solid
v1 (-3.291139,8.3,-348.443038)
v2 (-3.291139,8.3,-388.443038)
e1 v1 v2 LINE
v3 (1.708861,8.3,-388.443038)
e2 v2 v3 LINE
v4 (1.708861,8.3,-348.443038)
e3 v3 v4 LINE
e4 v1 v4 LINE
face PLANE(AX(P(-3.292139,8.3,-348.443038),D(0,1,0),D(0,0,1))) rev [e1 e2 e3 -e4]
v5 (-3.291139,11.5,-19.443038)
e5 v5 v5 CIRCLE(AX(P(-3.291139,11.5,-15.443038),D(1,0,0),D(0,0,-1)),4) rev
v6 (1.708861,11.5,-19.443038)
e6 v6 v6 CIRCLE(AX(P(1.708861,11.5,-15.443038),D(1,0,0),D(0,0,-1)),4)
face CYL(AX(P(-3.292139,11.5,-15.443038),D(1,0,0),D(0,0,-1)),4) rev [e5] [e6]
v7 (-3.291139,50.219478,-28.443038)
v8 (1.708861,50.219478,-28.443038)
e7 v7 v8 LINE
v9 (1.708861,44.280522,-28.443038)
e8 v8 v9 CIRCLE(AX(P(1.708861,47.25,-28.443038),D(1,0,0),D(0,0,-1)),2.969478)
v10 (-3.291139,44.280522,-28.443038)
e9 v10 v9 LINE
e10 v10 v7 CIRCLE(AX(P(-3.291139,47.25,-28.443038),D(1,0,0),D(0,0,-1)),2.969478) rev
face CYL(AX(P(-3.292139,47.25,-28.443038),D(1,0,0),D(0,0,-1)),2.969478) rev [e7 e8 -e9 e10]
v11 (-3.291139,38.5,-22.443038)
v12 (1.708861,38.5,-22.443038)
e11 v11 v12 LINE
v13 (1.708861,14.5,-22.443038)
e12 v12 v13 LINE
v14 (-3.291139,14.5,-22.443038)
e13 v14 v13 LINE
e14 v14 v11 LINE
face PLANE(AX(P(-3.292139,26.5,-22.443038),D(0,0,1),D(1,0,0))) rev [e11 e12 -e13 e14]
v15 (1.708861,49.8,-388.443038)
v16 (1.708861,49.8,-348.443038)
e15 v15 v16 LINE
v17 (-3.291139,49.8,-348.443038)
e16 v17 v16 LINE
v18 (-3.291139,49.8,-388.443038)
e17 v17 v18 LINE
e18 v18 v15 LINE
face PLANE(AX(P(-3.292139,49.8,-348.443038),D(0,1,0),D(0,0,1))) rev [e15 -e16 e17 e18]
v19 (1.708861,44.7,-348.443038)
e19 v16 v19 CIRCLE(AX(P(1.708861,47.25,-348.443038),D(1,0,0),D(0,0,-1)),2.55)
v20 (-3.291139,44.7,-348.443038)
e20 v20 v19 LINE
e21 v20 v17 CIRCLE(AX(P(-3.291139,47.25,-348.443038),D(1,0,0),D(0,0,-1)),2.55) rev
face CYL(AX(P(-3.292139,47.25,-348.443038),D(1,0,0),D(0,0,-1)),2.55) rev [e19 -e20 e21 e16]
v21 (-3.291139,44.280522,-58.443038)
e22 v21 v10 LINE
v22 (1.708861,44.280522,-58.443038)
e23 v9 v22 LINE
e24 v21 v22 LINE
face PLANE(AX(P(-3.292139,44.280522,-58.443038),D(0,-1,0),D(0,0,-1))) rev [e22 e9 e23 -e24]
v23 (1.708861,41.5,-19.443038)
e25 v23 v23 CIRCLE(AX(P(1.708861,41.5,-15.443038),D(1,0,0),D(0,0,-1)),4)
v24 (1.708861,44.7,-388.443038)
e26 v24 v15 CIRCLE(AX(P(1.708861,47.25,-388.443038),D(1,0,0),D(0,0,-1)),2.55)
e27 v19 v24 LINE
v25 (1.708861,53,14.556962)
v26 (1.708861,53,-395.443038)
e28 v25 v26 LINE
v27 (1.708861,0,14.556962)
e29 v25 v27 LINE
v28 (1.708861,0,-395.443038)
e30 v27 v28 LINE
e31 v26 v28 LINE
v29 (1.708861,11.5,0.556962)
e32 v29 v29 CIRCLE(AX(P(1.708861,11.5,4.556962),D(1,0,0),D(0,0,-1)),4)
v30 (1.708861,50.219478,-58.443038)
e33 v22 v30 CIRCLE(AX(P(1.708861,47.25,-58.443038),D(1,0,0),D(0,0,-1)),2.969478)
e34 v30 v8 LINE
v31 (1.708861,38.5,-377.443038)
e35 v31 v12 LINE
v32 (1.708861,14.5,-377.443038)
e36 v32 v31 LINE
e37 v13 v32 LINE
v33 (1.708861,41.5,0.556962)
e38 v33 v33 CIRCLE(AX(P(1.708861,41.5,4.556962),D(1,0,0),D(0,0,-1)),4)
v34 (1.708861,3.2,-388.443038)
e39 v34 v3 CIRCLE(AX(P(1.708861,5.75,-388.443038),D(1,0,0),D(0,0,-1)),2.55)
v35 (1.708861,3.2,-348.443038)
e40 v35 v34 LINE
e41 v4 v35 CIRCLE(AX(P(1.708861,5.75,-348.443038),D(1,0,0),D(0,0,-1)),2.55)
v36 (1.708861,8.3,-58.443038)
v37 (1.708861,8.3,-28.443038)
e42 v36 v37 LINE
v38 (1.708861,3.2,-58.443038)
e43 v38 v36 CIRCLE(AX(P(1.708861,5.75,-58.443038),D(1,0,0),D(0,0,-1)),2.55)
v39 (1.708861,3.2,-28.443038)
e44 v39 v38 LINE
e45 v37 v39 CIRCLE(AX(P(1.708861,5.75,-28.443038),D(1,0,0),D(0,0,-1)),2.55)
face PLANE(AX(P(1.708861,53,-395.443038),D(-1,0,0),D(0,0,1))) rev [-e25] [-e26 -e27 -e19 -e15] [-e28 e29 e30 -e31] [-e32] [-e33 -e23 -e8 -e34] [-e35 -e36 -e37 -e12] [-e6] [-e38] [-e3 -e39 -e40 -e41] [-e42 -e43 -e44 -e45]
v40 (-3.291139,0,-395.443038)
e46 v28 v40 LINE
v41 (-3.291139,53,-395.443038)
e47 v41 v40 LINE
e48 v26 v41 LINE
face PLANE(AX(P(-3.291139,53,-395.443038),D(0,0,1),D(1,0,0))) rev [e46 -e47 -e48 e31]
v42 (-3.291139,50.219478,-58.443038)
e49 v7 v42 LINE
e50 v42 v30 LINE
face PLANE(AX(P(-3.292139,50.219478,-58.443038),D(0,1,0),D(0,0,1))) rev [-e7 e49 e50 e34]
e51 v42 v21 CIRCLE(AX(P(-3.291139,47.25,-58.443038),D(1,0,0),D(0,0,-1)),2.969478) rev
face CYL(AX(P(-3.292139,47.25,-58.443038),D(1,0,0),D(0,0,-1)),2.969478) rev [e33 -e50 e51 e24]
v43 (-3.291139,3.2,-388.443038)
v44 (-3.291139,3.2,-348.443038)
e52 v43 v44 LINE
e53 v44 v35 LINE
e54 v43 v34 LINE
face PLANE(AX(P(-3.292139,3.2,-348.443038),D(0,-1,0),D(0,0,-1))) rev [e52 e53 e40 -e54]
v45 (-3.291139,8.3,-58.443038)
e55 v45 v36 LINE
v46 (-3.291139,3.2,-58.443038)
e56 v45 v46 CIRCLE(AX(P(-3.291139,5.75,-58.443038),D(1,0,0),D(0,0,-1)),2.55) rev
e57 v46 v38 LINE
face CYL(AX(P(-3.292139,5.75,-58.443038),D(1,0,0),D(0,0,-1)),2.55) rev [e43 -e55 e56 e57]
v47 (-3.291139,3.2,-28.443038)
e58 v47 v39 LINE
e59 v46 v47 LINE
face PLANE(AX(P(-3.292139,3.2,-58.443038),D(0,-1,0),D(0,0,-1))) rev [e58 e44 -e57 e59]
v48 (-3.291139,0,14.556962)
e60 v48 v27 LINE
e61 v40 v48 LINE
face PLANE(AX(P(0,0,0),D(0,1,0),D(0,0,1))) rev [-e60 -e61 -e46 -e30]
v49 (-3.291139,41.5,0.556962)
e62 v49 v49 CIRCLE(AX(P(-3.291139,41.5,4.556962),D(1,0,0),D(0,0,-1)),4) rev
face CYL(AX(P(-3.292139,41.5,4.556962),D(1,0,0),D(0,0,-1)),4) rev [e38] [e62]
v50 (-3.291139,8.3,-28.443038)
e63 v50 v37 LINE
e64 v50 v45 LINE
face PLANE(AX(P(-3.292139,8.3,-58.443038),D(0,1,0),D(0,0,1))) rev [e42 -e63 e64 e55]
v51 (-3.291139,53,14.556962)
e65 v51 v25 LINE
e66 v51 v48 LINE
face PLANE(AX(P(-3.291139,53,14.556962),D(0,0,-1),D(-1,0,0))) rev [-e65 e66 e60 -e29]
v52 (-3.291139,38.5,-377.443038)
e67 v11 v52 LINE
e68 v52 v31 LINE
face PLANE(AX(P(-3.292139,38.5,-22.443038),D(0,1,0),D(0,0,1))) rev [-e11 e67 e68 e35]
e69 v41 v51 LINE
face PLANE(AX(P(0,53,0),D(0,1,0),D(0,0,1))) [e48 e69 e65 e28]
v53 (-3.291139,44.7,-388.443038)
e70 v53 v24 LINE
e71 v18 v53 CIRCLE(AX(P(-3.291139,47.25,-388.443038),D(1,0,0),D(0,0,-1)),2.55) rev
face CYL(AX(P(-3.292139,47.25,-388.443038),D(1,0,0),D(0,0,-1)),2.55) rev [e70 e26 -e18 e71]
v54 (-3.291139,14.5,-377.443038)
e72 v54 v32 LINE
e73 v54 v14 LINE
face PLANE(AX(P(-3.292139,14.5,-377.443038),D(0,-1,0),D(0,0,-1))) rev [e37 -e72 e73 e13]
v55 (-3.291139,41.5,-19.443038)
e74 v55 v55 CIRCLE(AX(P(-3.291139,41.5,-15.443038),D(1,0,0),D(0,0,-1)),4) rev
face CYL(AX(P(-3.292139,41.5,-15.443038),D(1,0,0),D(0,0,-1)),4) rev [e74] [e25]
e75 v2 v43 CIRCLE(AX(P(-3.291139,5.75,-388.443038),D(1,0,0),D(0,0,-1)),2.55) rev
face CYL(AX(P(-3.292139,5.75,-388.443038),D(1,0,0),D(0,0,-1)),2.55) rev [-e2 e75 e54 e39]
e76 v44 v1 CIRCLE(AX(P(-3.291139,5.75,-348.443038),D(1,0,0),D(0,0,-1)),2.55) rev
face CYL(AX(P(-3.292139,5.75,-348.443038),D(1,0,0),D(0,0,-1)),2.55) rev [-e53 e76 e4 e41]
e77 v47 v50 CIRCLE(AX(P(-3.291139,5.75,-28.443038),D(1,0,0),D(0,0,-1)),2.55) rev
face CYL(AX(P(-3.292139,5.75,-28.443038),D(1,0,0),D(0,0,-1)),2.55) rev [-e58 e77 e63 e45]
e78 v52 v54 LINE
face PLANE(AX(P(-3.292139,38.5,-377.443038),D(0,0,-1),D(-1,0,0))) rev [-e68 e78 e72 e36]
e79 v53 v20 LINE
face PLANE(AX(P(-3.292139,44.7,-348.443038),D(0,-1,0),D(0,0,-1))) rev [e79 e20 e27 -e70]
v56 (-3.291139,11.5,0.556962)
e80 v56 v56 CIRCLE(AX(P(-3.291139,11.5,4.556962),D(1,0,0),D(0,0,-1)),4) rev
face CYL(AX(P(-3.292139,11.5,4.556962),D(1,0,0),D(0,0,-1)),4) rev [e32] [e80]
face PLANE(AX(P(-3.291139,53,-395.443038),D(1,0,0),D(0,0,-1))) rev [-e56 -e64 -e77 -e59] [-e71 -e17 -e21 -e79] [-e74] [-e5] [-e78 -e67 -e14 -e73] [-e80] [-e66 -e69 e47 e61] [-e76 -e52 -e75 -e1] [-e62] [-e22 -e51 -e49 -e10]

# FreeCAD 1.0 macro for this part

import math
import FreeCAD as App
import Part
import Sketcher
from FreeCAD import Vector

doc = App.newDocument("Part")
params = doc.addObject("Spreadsheet::Sheet", "Params")
for row, (alias, value) in enumerate([
    ("sketch1_width", "5 mm"),
    ("sketch1_height", "410 mm"),
    ("pad1_length", "53 mm"),
    ("sketch2_height", "30 mm"),
    ("sketch3_height", "30 mm"),
    ("sketch3_radius", "2.55 mm"),
    ("sketch4_height", "40 mm"),
    ("sketch4_radius", "2.55 mm"),
    ("sketch5_height", "40 mm"),
    ("sketch5_radius", "2.55 mm"),
    ("sketch6_width", "24 mm"),
    ("sketch6_height", "355 mm"),
    ("sketch7_diameter", "8 mm"),
    ("sketch8_diameter", "8 mm"),
    ("sketch9_diameter", "8 mm"),
    ("sketch10_diameter", "8 mm"),
], start=1):
    params.set(f"A{row}", alias)
    params.set(f"B{row}", "=" + value)
    params.setAlias(f"B{row}", alias)

body = doc.addObject("PartDesign::Body", "Body")

# Sketch on XZ plane
sketch1 = body.newObject("Sketcher::SketchObject", "Sketch")
sketch1.AttachmentSupport = (doc.getObject("XZ_Plane"), [""])
sketch1.MapMode = "FlatFace"
sketch1.addGeometry(Part.LineSegment(Vector(-3, -395, 0), Vector(-3, 15, 0)), False)
sketch1.addGeometry(Part.LineSegment(Vector(-3, 15, 0), Vector(2, 15, 0)), False)
sketch1.addGeometry(Part.LineSegment(Vector(2, 15, 0), Vector(2, -395, 0)), False)
sketch1.addGeometry(Part.LineSegment(Vector(2, -395, 0), Vector(-3, -395, 0)), False)
sketch1.addConstraint(Sketcher.Constraint("Coincident", 0, 2, 1, 1))
sketch1.addConstraint(Sketcher.Constraint("Coincident", 1, 2, 2, 1))
sketch1.addConstraint(Sketcher.Constraint("Coincident", 2, 2, 3, 1))
sketch1.addConstraint(Sketcher.Constraint("Coincident", 3, 2, 0, 1))
sketch1.addConstraint(Sketcher.Constraint("Vertical", 0))
sketch1.addConstraint(Sketcher.Constraint("Horizontal", 1))
sketch1.addConstraint(Sketcher.Constraint("Vertical", 2))
sketch1.addConstraint(Sketcher.Constraint("Horizontal", 3))
sketch1.addConstraint(Sketcher.Constraint("DistanceX", 1, 1, 1, 2, 5.0))
sketch1.addConstraint(Sketcher.Constraint("DistanceY", 0, 1, 0, 2, 410.0))
sketch1.addConstraint(Sketcher.Constraint("DistanceX", 0, 2, -1, 1, 3.291139))
sketch1.addConstraint(Sketcher.Constraint("DistanceY", -1, 1, 0, 2, 14.556962))
sketch1.setExpression("Constraints[8]", "Params.sketch1_width")
sketch1.setExpression("Constraints[9]", "Params.sketch1_height")
pad1 = body.newObject("PartDesign::Pad", "Pad")
pad1.Profile = sketch1
pad1.setExpression("Length", "Params.pad1_length")
pad1.Reversed = True

# Sketch on YZ plane
sketch2 = body.newObject("Sketcher::SketchObject", "Sketch001")
sketch2.AttachmentSupport = (doc.getObject("YZ_Plane"), [""])
sketch2.MapMode = "FlatFace"
sketch2.AttachmentOffset = App.Placement(Vector(0, 0, 1.708861), App.Rotation())
sketch2.addGeometry(Part.LineSegment(Vector(44.3, -28.4, 0), Vector(44.3, -58.4, 0)), False)
sketch2.addGeometry(Part.ArcOfCircle(Part.Circle(Vector(47.2, -58.4, 0), Vector(0, 0, 1), 3), math.radians(180), math.radians(360)), False)
sketch2.addGeometry(Part.LineSegment(Vector(50.2, -58.4, 0), Vector(50.2, -28.4, 0)), False)
sketch2.addGeometry(Part.ArcOfCircle(Part.Circle(Vector(47.2, -28.4, 0), Vector(0, 0, 1), 3), math.radians(0), math.radians(180)), False)
sketch2.addConstraint(Sketcher.Constraint("Tangent", 0, 2, 1, 1))
sketch2.addConstraint(Sketcher.Constraint("Tangent", 1, 2, 2, 1))
sketch2.addConstraint(Sketcher.Constraint("Tangent", 2, 2, 3, 1))
sketch2.addConstraint(Sketcher.Constraint("Tangent", 3, 2, 0, 1))
sketch2.addConstraint(Sketcher.Constraint("Vertical", 0))
sketch2.addConstraint(Sketcher.Constraint("Vertical", 2))
sketch2.addConstraint(Sketcher.Constraint("DistanceY", 0, 2, 0, 1, 30.0))
sketch2.addConstraint(Sketcher.Constraint("DistanceX", -1, 1, 1, 3, 47.25))
sketch2.addConstraint(Sketcher.Constraint("Radius", 1, 2.969478))
sketch2.addConstraint(Sketcher.Constraint("DistanceY", 1, 3, -1, 1, 58.443038))
sketch2.setExpression("Constraints[6]", "Params.sketch2_height")
pocket1 = body.newObject("PartDesign::Pocket", "Pocket")
pocket1.Profile = sketch2
pocket1.Type = "UpToFirst"

# Sketch on YZ plane
sketch3 = body.newObject("Sketcher::SketchObject", "Sketch002")
sketch3.AttachmentSupport = (doc.getObject("YZ_Plane"), [""])
sketch3.MapMode = "FlatFace"
sketch3.AttachmentOffset = App.Placement(Vector(0, 0, 1.708861), App.Rotation())
sketch3.addGeometry(Part.LineSegment(Vector(3.2, -28.4, 0), Vector(3.2, -58.4, 0)), False)
sketch3.addGeometry(Part.ArcOfCircle(Part.Circle(Vector(5.8, -58.4, 0), Vector(0, 0, 1), 2.5), math.radians(180), math.radians(360)), False)
sketch3.addGeometry(Part.LineSegment(Vector(8.3, -58.4, 0), Vector(8.3, -28.4, 0)), False)
sketch3.addGeometry(Part.ArcOfCircle(Part.Circle(Vector(5.8, -28.4, 0), Vector(0, 0, 1), 2.5), math.radians(0), math.radians(180)), False)
sketch3.addConstraint(Sketcher.Constraint("Tangent", 0, 2, 1, 1))
sketch3.addConstraint(Sketcher.Constraint("Tangent", 1, 2, 2, 1))
sketch3.addConstraint(Sketcher.Constraint("Tangent", 2, 2, 3, 1))
sketch3.addConstraint(Sketcher.Constraint("Tangent", 3, 2, 0, 1))
sketch3.addConstraint(Sketcher.Constraint("Vertical", 0))
sketch3.addConstraint(Sketcher.Constraint("Vertical", 2))
sketch3.addConstraint(Sketcher.Constraint("DistanceY", 0, 2, 0, 1, 30.0))
sketch3.addConstraint(Sketcher.Constraint("Radius", 1, 2.55))
sketch3.addConstraint(Sketcher.Constraint("DistanceX", -1, 1, 0, 2, 3.2))
sketch3.addConstraint(Sketcher.Constraint("DistanceY", 1, 3, -1, 1, 58.443038))
sketch3.setExpression("Constraints[6]", "Params.sketch3_height")
sketch3.setExpression("Constraints[7]", "Params.sketch3_radius")
pocket2 = body.newObject("PartDesign::Pocket", "Pocket001")
pocket2.Profile = sketch3
pocket2.Type = "UpToFirst"

# Sketch on YZ plane
sketch4 = body.newObject("Sketcher::SketchObject", "Sketch003")
sketch4.AttachmentSupport = (doc.getObject("YZ_Plane"), [""])
sketch4.MapMode = "FlatFace"
sketch4.AttachmentOffset = App.Placement(Vector(0, 0, 1.708861), App.Rotation())
sketch4.addGeometry(Part.LineSegment(Vector(49.8, -388.4, 0), Vector(49.8, -348.4, 0)), False)
sketch4.addGeometry(Part.ArcOfCircle(Part.Circle(Vector(47.2, -348.4, 0), Vector(0, 0, 1), 2.5), math.radians(0), math.radians(180)), False)
sketch4.addGeometry(Part.LineSegment(Vector(44.7, -348.4, 0), Vector(44.7, -388.4, 0)), False)
sketch4.addGeometry(Part.ArcOfCircle(Part.Circle(Vector(47.2, -388.4, 0), Vector(0, 0, 1), 2.5), math.radians(180), math.radians(360)), False)
sketch4.addConstraint(Sketcher.Constraint("Tangent", 0, 2, 1, 1))
sketch4.addConstraint(Sketcher.Constraint("Tangent", 1, 2, 2, 1))
sketch4.addConstraint(Sketcher.Constraint("Tangent", 2, 2, 3, 1))
sketch4.addConstraint(Sketcher.Constraint("Tangent", 3, 2, 0, 1))
sketch4.addConstraint(Sketcher.Constraint("Vertical", 0))
sketch4.addConstraint(Sketcher.Constraint("Vertical", 2))
sketch4.addConstraint(Sketcher.Constraint("DistanceY", 0, 1, 0, 2, 40.0))
sketch4.addConstraint(Sketcher.Constraint("Radius", 1, 2.55))
sketch4.addConstraint(Sketcher.Constraint("DistanceX", -1, 1, 0, 2, 49.8))
sketch4.addConstraint(Sketcher.Constraint("DistanceY", 1, 3, -1, 1, 348.443038))
sketch4.setExpression("Constraints[6]", "Params.sketch4_height")
sketch4.setExpression("Constraints[7]", "Params.sketch4_radius")
pocket3 = body.newObject("PartDesign::Pocket", "Pocket002")
pocket3.Profile = sketch4
pocket3.Type = "UpToFirst"

# Sketch on YZ plane
sketch5 = body.newObject("Sketcher::SketchObject", "Sketch004")
sketch5.AttachmentSupport = (doc.getObject("YZ_Plane"), [""])
sketch5.MapMode = "FlatFace"
sketch5.AttachmentOffset = App.Placement(Vector(0, 0, 1.708861), App.Rotation())
sketch5.addGeometry(Part.LineSegment(Vector(8.3, -388.4, 0), Vector(8.3, -348.4, 0)), False)
sketch5.addGeometry(Part.ArcOfCircle(Part.Circle(Vector(5.8, -348.4, 0), Vector(0, 0, 1), 2.5), math.radians(0), math.radians(180)), False)
sketch5.addGeometry(Part.LineSegment(Vector(3.2, -348.4, 0), Vector(3.2, -388.4, 0)), False)
sketch5.addGeometry(Part.ArcOfCircle(Part.Circle(Vector(5.8, -388.4, 0), Vector(0, 0, 1), 2.5), math.radians(180), math.radians(360)), False)
sketch5.addConstraint(Sketcher.Constraint("Tangent", 0, 2, 1, 1))
sketch5.addConstraint(Sketcher.Constraint("Tangent", 1, 2, 2, 1))
sketch5.addConstraint(Sketcher.Constraint("Tangent", 2, 2, 3, 1))
sketch5.addConstraint(Sketcher.Constraint("Tangent", 3, 2, 0, 1))
sketch5.addConstraint(Sketcher.Constraint("Vertical", 0))
sketch5.addConstraint(Sketcher.Constraint("Vertical", 2))
sketch5.addConstraint(Sketcher.Constraint("DistanceY", 0, 1, 0, 2, 40.0))
sketch5.addConstraint(Sketcher.Constraint("Radius", 1, 2.55))
sketch5.addConstraint(Sketcher.Constraint("DistanceX", -1, 1, 0, 2, 8.3))
sketch5.addConstraint(Sketcher.Constraint("DistanceY", 1, 3, -1, 1, 348.443038))
sketch5.setExpression("Constraints[6]", "Params.sketch5_height")
sketch5.setExpression("Constraints[7]", "Params.sketch5_radius")
pocket4 = body.newObject("PartDesign::Pocket", "Pocket003")
pocket4.Profile = sketch5
pocket4.Type = "UpToFirst"

# Sketch on YZ plane
sketch6 = body.newObject("Sketcher::SketchObject", "Sketch005")
sketch6.AttachmentSupport = (doc.getObject("YZ_Plane"), [""])
sketch6.MapMode = "FlatFace"
sketch6.AttachmentOffset = App.Placement(Vector(0, 0, 1.708861), App.Rotation())
sketch6.addGeometry(Part.LineSegment(Vector(38, -22, 0), Vector(14, -22, 0)), False)
sketch6.addGeometry(Part.LineSegment(Vector(14, -22, 0), Vector(14, -377, 0)), False)
sketch6.addGeometry(Part.LineSegment(Vector(14, -377, 0), Vector(38, -377, 0)), False)
sketch6.addGeometry(Part.LineSegment(Vector(38, -377, 0), Vector(38, -22, 0)), False)
sketch6.addConstraint(Sketcher.Constraint("Coincident", 0, 2, 1, 1))
sketch6.addConstraint(Sketcher.Constraint("Coincident", 1, 2, 2, 1))
sketch6.addConstraint(Sketcher.Constraint("Coincident", 2, 2, 3, 1))
sketch6.addConstraint(Sketcher.Constraint("Coincident", 3, 2, 0, 1))
sketch6.addConstraint(Sketcher.Constraint("Horizontal", 0))
sketch6.addConstraint(Sketcher.Constraint("Vertical", 1))
sketch6.addConstraint(Sketcher.Constraint("Horizontal", 2))
sketch6.addConstraint(Sketcher.Constraint("Vertical", 3))
sketch6.addConstraint(Sketcher.Constraint("DistanceX", 0, 2, 0, 1, 24.0))
sketch6.addConstraint(Sketcher.Constraint("DistanceY", 1, 2, 1, 1, 355.0))
sketch6.addConstraint(Sketcher.Constraint("DistanceX", -1, 1, 0, 2, 14.5))
sketch6.addConstraint(Sketcher.Constraint("DistanceY", 0, 2, -1, 1, 22.443038))
sketch6.setExpression("Constraints[8]", "Params.sketch6_width")
sketch6.setExpression("Constraints[9]", "Params.sketch6_height")
pocket5 = body.newObject("PartDesign::Pocket", "Pocket004")
pocket5.Profile = sketch6
pocket5.Type = "UpToFirst"

# Sketch on YZ plane
sketch7 = body.newObject("Sketcher::SketchObject", "Sketch006")
sketch7.AttachmentSupport = (doc.getObject("YZ_Plane"), [""])
sketch7.MapMode = "FlatFace"
sketch7.AttachmentOffset = App.Placement(Vector(0, 0, 1.708861), App.Rotation())
sketch7.addGeometry(Part.Circle(Vector(41.5, 4.6, 0), Vector(0, 0, 1), 4), False)
sketch7.addConstraint(Sketcher.Constraint("Diameter", 0, 8.0))
sketch7.addConstraint(Sketcher.Constraint("DistanceX", -1, 1, 0, 3, 41.5))
sketch7.addConstraint(Sketcher.Constraint("DistanceY", -1, 1, 0, 3, 4.556962))
sketch7.setExpression("Constraints[0]", "Params.sketch7_diameter")
pocket6 = body.newObject("PartDesign::Pocket", "Pocket005")
pocket6.Profile = sketch7
pocket6.Type = "UpToFirst"

# Sketch on YZ plane
sketch8 = body.newObject("Sketcher::SketchObject", "Sketch007")
sketch8.AttachmentSupport = (doc.getObject("YZ_Plane"), [""])
sketch8.MapMode = "FlatFace"
sketch8.AttachmentOffset = App.Placement(Vector(0, 0, 1.708861), App.Rotation())
sketch8.addGeometry(Part.Circle(Vector(41.5, -15.4, 0), Vector(0, 0, 1), 4), False)
sketch8.addConstraint(Sketcher.Constraint("Diameter", 0, 8.0))
sketch8.addConstraint(Sketcher.Constraint("DistanceX", -1, 1, 0, 3, 41.5))
sketch8.addConstraint(Sketcher.Constraint("DistanceY", 0, 3, -1, 1, 15.443038))
sketch8.setExpression("Constraints[0]", "Params.sketch8_diameter")
pocket7 = body.newObject("PartDesign::Pocket", "Pocket006")
pocket7.Profile = sketch8
pocket7.Type = "UpToFirst"

# Sketch on YZ plane
sketch9 = body.newObject("Sketcher::SketchObject", "Sketch008")
sketch9.AttachmentSupport = (doc.getObject("YZ_Plane"), [""])
sketch9.MapMode = "FlatFace"
sketch9.AttachmentOffset = App.Placement(Vector(0, 0, 1.708861), App.Rotation())
sketch9.addGeometry(Part.Circle(Vector(11.5, -15.4, 0), Vector(0, 0, 1), 4), False)
sketch9.addConstraint(Sketcher.Constraint("Diameter", 0, 8.0))
sketch9.addConstraint(Sketcher.Constraint("DistanceX", -1, 1, 0, 3, 11.5))
sketch9.addConstraint(Sketcher.Constraint("DistanceY", 0, 3, -1, 1, 15.443038))
sketch9.setExpression("Constraints[0]", "Params.sketch9_diameter")
pocket8 = body.newObject("PartDesign::Pocket", "Pocket007")
pocket8.Profile = sketch9
pocket8.Type = "UpToFirst"

# Sketch on YZ plane
sketch10 = body.newObject("Sketcher::SketchObject", "Sketch009")
sketch10.AttachmentSupport = (doc.getObject("YZ_Plane"), [""])
sketch10.MapMode = "FlatFace"
sketch10.AttachmentOffset = App.Placement(Vector(0, 0, 1.708861), App.Rotation())
sketch10.addGeometry(Part.Circle(Vector(11.5, 4.6, 0), Vector(0, 0, 1), 4), False)
sketch10.addConstraint(Sketcher.Constraint("Diameter", 0, 8.0))
sketch10.addConstraint(Sketcher.Constraint("DistanceX", -1, 1, 0, 3, 11.5))
sketch10.addConstraint(Sketcher.Constraint("DistanceY", -1, 1, 0, 3, 4.556962))
sketch10.setExpression("Constraints[0]", "Params.sketch10_diameter")
pocket9 = body.newObject("PartDesign::Pocket", "Pocket008")
pocket9.Profile = sketch10
pocket9.Type = "UpToFirst"

doc.recompute()
